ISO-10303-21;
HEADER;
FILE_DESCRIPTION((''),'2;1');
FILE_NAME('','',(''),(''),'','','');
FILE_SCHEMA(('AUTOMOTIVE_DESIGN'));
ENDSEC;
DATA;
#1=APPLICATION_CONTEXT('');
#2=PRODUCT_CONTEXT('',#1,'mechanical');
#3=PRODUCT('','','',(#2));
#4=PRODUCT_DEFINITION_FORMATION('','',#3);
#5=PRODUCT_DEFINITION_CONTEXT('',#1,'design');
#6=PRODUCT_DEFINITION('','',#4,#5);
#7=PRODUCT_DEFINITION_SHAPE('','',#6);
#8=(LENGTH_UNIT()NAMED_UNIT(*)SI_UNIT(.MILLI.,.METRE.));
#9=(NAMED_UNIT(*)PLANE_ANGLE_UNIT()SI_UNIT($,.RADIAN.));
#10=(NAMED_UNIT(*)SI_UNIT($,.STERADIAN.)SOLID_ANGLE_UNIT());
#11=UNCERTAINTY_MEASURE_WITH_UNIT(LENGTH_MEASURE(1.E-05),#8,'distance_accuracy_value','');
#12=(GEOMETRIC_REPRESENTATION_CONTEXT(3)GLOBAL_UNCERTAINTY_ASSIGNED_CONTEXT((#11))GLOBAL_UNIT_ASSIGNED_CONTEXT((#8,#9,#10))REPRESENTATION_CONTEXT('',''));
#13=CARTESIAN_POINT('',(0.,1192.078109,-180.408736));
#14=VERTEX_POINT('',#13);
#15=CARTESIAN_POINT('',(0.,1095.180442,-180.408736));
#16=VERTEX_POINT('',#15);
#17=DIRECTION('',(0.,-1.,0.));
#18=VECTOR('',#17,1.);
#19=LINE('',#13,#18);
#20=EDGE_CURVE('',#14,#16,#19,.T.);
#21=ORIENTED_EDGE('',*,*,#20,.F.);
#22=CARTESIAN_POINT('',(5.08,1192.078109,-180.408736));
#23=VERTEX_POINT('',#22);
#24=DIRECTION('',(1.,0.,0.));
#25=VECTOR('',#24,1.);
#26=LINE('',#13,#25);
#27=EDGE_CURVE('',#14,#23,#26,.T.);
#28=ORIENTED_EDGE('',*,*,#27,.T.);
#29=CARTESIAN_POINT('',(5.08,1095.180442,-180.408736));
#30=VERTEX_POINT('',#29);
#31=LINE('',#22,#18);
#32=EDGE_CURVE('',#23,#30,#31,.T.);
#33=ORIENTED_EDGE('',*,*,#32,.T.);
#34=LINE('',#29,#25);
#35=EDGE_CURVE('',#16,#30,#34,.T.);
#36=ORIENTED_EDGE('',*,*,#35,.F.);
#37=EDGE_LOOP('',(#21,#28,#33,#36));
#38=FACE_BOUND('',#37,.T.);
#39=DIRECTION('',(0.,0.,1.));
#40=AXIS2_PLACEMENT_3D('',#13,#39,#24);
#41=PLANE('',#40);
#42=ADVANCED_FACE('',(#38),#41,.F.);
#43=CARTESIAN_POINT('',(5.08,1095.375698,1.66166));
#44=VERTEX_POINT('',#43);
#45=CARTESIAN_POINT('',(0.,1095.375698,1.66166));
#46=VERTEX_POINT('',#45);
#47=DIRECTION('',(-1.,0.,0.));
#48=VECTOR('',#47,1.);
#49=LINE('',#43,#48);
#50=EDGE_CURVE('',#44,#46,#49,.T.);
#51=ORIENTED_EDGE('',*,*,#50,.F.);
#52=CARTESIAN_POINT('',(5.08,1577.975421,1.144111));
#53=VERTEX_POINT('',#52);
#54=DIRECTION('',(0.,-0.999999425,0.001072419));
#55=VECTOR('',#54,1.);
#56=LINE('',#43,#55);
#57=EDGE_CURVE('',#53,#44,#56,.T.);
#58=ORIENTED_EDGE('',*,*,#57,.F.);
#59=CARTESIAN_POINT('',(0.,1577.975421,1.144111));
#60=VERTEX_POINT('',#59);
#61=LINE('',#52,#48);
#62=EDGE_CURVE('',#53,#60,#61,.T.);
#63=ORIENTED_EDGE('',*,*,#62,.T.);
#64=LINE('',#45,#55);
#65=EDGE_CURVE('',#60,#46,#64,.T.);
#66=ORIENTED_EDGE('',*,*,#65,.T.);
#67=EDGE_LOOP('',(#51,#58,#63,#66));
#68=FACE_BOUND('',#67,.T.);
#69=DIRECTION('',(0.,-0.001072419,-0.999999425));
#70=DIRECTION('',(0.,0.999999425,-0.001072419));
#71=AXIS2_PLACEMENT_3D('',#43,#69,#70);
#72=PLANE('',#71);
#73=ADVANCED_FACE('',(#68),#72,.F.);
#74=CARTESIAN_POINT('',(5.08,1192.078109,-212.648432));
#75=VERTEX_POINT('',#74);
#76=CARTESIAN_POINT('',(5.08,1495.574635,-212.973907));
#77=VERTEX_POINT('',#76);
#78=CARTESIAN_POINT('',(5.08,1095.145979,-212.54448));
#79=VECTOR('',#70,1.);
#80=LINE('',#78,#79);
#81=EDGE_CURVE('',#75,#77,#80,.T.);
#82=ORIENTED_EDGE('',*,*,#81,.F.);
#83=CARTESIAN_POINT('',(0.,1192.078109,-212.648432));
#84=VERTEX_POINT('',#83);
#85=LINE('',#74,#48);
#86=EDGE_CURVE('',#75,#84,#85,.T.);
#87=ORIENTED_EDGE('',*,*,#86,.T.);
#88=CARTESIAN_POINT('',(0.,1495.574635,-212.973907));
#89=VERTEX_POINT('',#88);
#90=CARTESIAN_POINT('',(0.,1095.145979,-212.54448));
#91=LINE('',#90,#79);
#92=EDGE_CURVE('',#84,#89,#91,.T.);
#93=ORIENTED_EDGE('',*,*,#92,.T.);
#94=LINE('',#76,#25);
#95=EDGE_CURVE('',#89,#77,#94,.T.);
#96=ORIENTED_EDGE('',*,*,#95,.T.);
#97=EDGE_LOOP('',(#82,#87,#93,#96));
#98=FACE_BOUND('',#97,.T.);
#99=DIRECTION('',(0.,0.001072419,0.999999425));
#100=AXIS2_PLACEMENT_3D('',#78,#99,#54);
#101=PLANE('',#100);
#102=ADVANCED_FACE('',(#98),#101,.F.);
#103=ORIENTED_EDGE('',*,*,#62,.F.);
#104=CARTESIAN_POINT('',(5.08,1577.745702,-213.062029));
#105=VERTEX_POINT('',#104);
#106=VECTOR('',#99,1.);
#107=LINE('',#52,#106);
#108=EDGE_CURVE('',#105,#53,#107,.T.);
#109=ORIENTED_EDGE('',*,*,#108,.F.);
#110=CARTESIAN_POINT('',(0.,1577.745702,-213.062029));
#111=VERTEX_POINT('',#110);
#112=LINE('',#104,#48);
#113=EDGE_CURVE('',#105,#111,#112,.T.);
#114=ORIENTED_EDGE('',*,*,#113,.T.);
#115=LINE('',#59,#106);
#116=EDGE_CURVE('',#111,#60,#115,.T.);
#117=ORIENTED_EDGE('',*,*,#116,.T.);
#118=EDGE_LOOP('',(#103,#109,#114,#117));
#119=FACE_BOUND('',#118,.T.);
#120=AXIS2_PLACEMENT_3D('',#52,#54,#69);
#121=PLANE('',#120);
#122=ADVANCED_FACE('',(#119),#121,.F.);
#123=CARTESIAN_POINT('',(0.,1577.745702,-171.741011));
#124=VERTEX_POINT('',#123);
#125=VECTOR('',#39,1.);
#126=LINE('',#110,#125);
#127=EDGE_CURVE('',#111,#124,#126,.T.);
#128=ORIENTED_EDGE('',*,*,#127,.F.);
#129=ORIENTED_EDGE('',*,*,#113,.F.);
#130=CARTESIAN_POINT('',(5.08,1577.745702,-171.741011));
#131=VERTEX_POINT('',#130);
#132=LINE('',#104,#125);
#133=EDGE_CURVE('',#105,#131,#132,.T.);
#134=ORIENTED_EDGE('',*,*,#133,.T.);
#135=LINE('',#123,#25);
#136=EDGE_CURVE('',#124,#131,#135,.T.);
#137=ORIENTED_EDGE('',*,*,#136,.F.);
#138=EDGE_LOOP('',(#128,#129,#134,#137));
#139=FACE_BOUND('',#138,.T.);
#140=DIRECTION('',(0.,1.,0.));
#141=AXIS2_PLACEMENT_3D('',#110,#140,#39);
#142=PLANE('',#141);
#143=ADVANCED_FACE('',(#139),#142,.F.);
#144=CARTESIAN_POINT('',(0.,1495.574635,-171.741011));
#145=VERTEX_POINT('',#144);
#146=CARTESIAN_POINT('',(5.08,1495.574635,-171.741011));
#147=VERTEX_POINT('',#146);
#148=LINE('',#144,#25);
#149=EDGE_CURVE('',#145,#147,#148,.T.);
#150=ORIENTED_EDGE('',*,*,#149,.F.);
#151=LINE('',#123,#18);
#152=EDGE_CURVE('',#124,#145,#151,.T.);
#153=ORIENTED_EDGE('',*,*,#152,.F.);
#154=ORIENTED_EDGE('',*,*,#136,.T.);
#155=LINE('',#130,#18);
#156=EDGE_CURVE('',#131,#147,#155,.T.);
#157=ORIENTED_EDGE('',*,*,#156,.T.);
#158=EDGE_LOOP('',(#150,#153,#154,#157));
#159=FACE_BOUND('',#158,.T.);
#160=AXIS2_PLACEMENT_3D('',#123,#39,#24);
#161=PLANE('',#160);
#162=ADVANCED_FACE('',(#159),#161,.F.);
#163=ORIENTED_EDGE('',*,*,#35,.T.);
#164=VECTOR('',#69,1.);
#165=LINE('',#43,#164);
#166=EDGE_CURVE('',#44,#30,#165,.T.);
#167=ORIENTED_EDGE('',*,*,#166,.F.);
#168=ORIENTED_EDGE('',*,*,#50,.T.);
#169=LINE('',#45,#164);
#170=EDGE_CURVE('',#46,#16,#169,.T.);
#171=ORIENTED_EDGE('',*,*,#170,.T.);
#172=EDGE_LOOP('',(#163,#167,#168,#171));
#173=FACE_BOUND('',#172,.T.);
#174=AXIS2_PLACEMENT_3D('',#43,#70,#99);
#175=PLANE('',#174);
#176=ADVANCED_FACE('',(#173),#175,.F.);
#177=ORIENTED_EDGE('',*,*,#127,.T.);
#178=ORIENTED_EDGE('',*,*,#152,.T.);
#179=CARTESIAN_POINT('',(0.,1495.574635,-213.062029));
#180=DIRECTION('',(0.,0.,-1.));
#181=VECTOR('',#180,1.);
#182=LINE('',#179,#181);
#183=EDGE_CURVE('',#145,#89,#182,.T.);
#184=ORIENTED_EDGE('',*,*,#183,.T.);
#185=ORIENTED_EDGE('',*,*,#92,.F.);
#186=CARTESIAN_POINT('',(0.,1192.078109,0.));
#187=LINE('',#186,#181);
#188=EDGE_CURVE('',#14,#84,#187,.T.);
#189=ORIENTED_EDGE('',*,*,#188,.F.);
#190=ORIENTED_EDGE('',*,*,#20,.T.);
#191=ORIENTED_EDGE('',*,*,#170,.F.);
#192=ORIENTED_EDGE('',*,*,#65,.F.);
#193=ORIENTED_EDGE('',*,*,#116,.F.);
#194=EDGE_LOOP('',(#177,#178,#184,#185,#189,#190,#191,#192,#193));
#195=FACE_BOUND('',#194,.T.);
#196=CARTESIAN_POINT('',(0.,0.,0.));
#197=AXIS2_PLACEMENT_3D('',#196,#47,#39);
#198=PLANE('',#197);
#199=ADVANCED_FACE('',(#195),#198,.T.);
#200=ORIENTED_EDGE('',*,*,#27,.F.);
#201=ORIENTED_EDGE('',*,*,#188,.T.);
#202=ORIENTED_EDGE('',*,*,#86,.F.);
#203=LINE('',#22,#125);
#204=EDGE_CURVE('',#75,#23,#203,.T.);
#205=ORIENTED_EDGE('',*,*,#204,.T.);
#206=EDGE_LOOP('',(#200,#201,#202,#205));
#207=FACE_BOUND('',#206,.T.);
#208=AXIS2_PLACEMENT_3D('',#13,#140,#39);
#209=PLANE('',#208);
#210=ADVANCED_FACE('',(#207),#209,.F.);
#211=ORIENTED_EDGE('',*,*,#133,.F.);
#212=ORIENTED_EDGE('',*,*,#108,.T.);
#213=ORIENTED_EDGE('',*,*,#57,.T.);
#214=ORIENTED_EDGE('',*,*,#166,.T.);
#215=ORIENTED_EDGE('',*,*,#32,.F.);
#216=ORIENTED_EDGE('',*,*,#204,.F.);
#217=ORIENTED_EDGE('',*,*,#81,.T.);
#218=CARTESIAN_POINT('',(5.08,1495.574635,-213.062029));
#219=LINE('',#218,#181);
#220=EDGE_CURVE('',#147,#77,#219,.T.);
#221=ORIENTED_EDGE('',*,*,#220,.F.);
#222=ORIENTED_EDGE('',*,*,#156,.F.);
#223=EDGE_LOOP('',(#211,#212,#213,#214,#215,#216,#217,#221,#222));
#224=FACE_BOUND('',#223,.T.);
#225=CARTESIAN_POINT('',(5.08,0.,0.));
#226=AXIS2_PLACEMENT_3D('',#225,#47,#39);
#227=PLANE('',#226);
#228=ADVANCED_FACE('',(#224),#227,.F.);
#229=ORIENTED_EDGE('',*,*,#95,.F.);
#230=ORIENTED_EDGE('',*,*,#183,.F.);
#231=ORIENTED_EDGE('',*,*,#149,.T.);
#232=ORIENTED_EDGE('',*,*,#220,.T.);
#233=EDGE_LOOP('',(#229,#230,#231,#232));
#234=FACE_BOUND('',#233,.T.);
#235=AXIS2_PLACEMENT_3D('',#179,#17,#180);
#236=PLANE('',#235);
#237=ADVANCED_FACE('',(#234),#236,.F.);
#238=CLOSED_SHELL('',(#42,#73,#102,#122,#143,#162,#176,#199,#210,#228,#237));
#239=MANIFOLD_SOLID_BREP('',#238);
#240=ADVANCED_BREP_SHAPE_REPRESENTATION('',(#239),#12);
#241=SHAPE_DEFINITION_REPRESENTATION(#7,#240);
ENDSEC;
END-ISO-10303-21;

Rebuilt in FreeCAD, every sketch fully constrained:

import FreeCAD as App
import Part
import Sketcher
from FreeCAD import Vector
Q = App.Units.Quantity


def add_polygon(sketch, points):
    """Adds a closed chain of lines whose ends are joined by coincident constraints."""
    first, n = sketch.GeometryCount, len(points)
    for a, b in zip(points, points[1:] + points[:1]):
        sketch.addGeometry(Part.LineSegment(App.Vector(*a, 0), App.Vector(*b, 0)), False)
    for i in range(n):
        sketch.addConstraint(Sketcher.Constraint("Coincident", first + i, 2, first + (i + 1) % n, 1))

doc = App.newDocument("Part")
body = doc.addObject("PartDesign::Body", "Body")

sketch1 = body.newObject("Sketcher::SketchObject", "Sketch")
sketch1.AttachmentSupport = (doc.getObject("YZ_Plane"), [""])
sketch1.MapMode = "FlatFace"
add_polygon(sketch1, [(1095, 2), (1095, -213), (1578, -213), (1578, 1)])
sketch1.addConstraint([
    Sketcher.Constraint("Perpendicular", 0, 1),
    Sketcher.Constraint("Perpendicular", 1, 2),
    Sketcher.Constraint("Perpendicular", 2, 3),
    Sketcher.Constraint("Distance", 1, Q("19 in")),
    Sketcher.Constraint("DistanceX", -1, 1, 1, 2, Q("1577.745702 mm")),
    Sketcher.Constraint("DistanceX", -1, 1, 3, 2, Q("1095.375698 mm")),
    Sketcher.Constraint("DistanceY", 0, 2, -1, 1, Q("212.54448 mm")),
    Sketcher.Constraint("DistanceY", -1, 1, 2, 2, Q("1.144111 mm")),
])
pad1 = body.newObject("PartDesign::Pad", "Pad")
pad1.Profile = sketch1
pad1.Length = Q("0.2 in")

sketch2 = body.newObject("Sketcher::SketchObject", "Sketch001")
sketch2.AttachmentSupport = (doc.getObject("YZ_Plane"), [""])
sketch2.MapMode = "FlatFace"
sketch2.AttachmentOffset = App.Placement(Vector(0, 0, 0.2 * 25.4), App.Rotation())
add_polygon(sketch2, [(1578, -172), (1496, -172), (1496, -213), (1578, -213)])
add_polygon(sketch2, [(1192, -180), (1061, -180), (1061, -245), (1192, -245)])
sketch2.addConstraint([
    Sketcher.Constraint("Horizontal", 0),
    Sketcher.Constraint("Vertical", 1),
    Sketcher.Constraint("Horizontal", 2),
    Sketcher.Constraint("Vertical", 3),
    Sketcher.Constraint("Horizontal", 4),
    Sketcher.Constraint("Vertical", 5),
    Sketcher.Constraint("Horizontal", 6),
    Sketcher.Constraint("Vertical", 7),
    Sketcher.Constraint("DistanceY", 5, 2, 5, 1, Q("64.858701 mm")),
    Sketcher.Constraint("DistanceY", 1, 2, 1, 1, Q("41.321018 mm")),
    Sketcher.Constraint("DistanceX", -1, 1, 2, 2, Q("1577.745702 mm")),
    Sketcher.Constraint("DistanceX", 0, 2, 0, 1, Q("82.171066 mm")),
    Sketcher.Constraint("DistanceX", 4, 2, 4, 1, Q("131.277003 mm")),
    Sketcher.Constraint("DistanceY", 0, 2, -1, 1, Q("171.741011 mm")),
    Sketcher.Constraint("DistanceX", -1, 1, 6, 2, Q("1192.078109 mm")),
    Sketcher.Constraint("DistanceY", 4, 2, -1, 1, Q("180.408736 mm")),
])
pocket1 = body.newObject("PartDesign::Pocket", "Pocket")
pocket1.Profile = sketch2
pocket1.Type = "ThroughAll"

doc.recompute()
